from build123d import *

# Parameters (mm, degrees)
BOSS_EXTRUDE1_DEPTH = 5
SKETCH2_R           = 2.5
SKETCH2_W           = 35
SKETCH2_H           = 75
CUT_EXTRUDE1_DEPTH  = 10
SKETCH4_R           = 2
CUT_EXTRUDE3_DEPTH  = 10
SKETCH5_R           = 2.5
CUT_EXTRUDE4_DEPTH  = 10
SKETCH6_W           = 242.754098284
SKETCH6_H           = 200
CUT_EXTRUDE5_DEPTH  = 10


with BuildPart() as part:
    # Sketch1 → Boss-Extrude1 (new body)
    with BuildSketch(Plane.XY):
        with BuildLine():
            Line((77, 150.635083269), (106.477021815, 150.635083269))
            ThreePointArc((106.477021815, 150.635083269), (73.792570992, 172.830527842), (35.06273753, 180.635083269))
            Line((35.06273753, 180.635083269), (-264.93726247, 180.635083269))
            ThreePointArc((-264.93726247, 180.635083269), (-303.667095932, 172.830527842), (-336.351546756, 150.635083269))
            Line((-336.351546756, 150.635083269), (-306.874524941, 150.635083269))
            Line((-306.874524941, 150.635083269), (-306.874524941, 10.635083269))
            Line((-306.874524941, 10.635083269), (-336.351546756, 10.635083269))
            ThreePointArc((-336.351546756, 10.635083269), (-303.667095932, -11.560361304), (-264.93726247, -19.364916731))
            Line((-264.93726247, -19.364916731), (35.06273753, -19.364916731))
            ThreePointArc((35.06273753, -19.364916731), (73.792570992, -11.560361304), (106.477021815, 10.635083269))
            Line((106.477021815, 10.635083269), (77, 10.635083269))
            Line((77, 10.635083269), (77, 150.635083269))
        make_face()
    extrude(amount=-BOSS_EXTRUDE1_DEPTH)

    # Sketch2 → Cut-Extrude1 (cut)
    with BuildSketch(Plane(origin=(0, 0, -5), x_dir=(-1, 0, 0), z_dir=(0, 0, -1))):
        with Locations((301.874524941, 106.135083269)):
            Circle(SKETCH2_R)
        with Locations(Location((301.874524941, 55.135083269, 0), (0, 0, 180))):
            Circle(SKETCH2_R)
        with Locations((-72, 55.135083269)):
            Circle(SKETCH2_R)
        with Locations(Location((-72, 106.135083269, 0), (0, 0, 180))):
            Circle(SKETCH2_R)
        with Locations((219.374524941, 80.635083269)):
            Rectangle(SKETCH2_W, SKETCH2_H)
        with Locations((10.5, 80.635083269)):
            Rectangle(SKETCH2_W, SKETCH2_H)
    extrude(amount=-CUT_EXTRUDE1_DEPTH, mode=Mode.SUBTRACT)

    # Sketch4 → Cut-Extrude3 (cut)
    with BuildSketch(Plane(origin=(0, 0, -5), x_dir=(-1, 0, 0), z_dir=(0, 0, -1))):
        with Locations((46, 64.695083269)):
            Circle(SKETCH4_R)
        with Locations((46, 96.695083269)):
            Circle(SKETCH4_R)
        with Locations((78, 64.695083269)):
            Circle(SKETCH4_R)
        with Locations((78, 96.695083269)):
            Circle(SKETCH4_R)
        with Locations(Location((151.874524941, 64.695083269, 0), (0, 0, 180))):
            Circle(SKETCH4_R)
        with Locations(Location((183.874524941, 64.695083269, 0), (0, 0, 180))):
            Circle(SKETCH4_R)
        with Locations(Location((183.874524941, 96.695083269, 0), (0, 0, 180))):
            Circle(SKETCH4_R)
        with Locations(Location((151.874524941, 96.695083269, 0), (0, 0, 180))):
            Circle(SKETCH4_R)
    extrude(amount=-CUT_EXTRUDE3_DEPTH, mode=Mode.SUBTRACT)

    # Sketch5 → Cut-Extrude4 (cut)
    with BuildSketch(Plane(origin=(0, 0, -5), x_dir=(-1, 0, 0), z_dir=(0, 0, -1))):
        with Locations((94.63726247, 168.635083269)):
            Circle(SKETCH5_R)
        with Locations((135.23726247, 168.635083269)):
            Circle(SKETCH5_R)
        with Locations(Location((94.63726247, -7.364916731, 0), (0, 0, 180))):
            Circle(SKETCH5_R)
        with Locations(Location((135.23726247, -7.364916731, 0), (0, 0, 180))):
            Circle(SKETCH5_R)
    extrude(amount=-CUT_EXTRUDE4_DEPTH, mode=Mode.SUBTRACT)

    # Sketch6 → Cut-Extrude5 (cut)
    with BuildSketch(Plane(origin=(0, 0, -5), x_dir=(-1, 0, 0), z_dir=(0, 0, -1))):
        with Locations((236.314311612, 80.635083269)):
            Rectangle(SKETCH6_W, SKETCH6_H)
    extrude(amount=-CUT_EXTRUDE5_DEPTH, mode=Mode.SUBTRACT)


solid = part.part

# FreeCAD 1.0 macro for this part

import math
import FreeCAD as App
import Part
import Sketcher

V = App.Vector
Q = App.Units.Quantity


def add_polygon(sketch, points):
    """Adds a closed chain of lines whose ends are joined by coincident constraints."""
    first, n = sketch.GeometryCount, len(points)
    for a, b in zip(points, points[1:] + points[:1]):
        sketch.addGeometry(Part.LineSegment(App.Vector(*a, 0), App.Vector(*b, 0)), False)
    for i in range(n):
        sketch.addConstraint(Sketcher.Constraint("Coincident", first + i, 2, first + (i + 1) % n, 1))

doc = App.newDocument("Part")
params = doc.addObject("Spreadsheet::Sheet", "Params")
for row, (alias, value) in enumerate([
    ("sketch1_radius", "100 mm"),
    ("sketch1_width", "300 mm"),
    ("sketch1_height", "140 mm"),
    ("pad1_length", "5 mm"),
    ("sketch2_diameter", "5 mm"),
    ("sketch2_width", "35 mm"),
    ("sketch2_height", "75 mm"),
    ("pocket1_length", "10 mm"),
    ("sketch3_diameter", "4 mm"),
    ("pocket2_length", "10 mm"),
    ("sketch4_diameter", "5 mm"),
    ("pocket3_length", "10 mm"),
    ("sketch5_height", "200 mm"),
    ("pocket4_length", "10 mm"),
], start=1):
    params.set(f"A{row}", alias)
    params.set(f"B{row}", "=" + value)
    params.setAlias(f"B{row}", alias)

body = doc.addObject("PartDesign::Body", "Body")

sketch1 = doc.addObject("Sketcher::SketchObject", "Sketch")
body.addObject(sketch1)
sketch1.AttachmentSupport = (doc.XY_Plane, [""])
sketch1.MapMode = "FlatFace"
sketch1.addGeometry([
    Part.LineSegment(V(77, 150.635083, 0), V(106.477022, 150.635083, 0)),
    Part.ArcOfCircle(Part.Circle(V(35.062738, 80.635083, 0), V(0, 0, 1), 100), math.radians(44.427004), math.radians(90)),
    Part.LineSegment(V(35.062738, 180.635083, 0), V(-264.937262, 180.635083, 0)),
    Part.ArcOfCircle(Part.Circle(V(-264.937262, 80.635083, 0), V(0, 0, 1), 100), math.radians(90), math.radians(135.572996)),
    Part.LineSegment(V(-336.351547, 150.635083, 0), V(-306.874525, 150.635083, 0)),
    Part.LineSegment(V(-306.874525, 150.635083, 0), V(-306.874525, 10.635083, 0)),
    Part.LineSegment(V(-306.874525, 10.635083, 0), V(-336.351547, 10.635083, 0)),
    Part.ArcOfCircle(Part.Circle(V(-264.937262, 80.635083, 0), V(0, 0, 1), 100), math.radians(-135.572996), math.radians(-90)),
    Part.LineSegment(V(-264.937262, -19.364917, 0), V(35.062738, -19.364917, 0)),
    Part.ArcOfCircle(Part.Circle(V(35.062738, 80.635083, 0), V(0, 0, 1), 100), math.radians(-90), math.radians(-44.427004)),
    Part.LineSegment(V(106.477022, 10.635083, 0), V(77, 10.635083, 0)),
    Part.LineSegment(V(77, 10.635083, 0), V(77, 150.635083, 0)),
], False)
sketch1.addConstraint([
    Sketcher.Constraint("Coincident", 0, 2, 1, 1),
    Sketcher.Constraint("Tangent", 1, 2, 2, 1),
    Sketcher.Constraint("Tangent", 2, 2, 3, 1),
    Sketcher.Constraint("Coincident", 3, 2, 4, 1),
    Sketcher.Constraint("Coincident", 4, 2, 5, 1),
    Sketcher.Constraint("Coincident", 5, 2, 6, 1),
    Sketcher.Constraint("Coincident", 6, 2, 7, 1),
    Sketcher.Constraint("Tangent", 7, 2, 8, 1),
    Sketcher.Constraint("Tangent", 8, 2, 9, 1),
    Sketcher.Constraint("Coincident", 9, 2, 10, 1),
    Sketcher.Constraint("Coincident", 10, 2, 11, 1),
    Sketcher.Constraint("Coincident", 11, 2, 0, 1),
    Sketcher.Constraint("Horizontal", 0),
    Sketcher.Constraint("Horizontal", 2),
    Sketcher.Constraint("Horizontal", 4),
    Sketcher.Constraint("Vertical", 5),
    Sketcher.Constraint("Horizontal", 6),
    Sketcher.Constraint("Horizontal", 8),
    Sketcher.Constraint("Horizontal", 10),
    Sketcher.Constraint("Vertical", 11),
    Sketcher.Constraint("Coincident", 7, 3, 3, 3),
    Sketcher.Constraint("Coincident", 9, 3, 1, 3),
    Sketcher.Constraint("Equal", 1, 3),
    Sketcher.Constraint("Equal", 3, 7),
    Sketcher.Constraint("Horizontal", 0, 2, 3, 2),
    Sketcher.Constraint("Horizontal", 6, 2, 9, 2),
    Sketcher.Constraint("Vertical", 3, 2, 6, 2),
    Sketcher.Constraint("Equal", 0, 4),
    Sketcher.Constraint("Radius", 1, Q("100 mm")),
    Sketcher.Constraint("DistanceX", 2, 2, 2, 1, Q("300 mm")),
    Sketcher.Constraint("DistanceY", 5, 2, 5, 1, Q("140 mm")),
    Sketcher.Constraint("DistanceX", -1, 1, 10, 2, Q("77 mm")),
    Sketcher.Constraint("DistanceX", 0, 1, 0, 2, Q("29.477022 mm")),
    Sketcher.Constraint("DistanceY", -1, 1, 1, 3, Q("80.635083 mm")),
])
sketch1.setExpression("Constraints[28]", "Params.sketch1_radius")
sketch1.setExpression("Constraints[29]", "Params.sketch1_width")
sketch1.setExpression("Constraints[30]", "Params.sketch1_height")
pad1 = doc.addObject("PartDesign::Pad", "Pad")
body.addObject(pad1)
pad1.Profile = sketch1
pad1.setExpression("Length", "Params.pad1_length")
pad1.Reversed = True

sketch2 = doc.addObject("Sketcher::SketchObject", "Sketch001")
body.addObject(sketch2)
sketch2.AttachmentSupport = (doc.XY_Plane, [""])
sketch2.MapMode = "FlatFace"
sketch2.AttachmentOffset = App.Placement(V(0, 0, -5), App.Rotation())
sketch2.addGeometry(Part.Circle(V(-301.874525, 106.135083, 0), V(0, 0, 1), 2.5), False)
sketch2.addGeometry(Part.Circle(V(-301.874525, 55.135083, 0), V(0, 0, 1), 2.5), False)
sketch2.addGeometry(Part.Circle(V(72, 55.135083, 0), V(0, 0, 1), 2.5), False)
sketch2.addGeometry(Part.Circle(V(72, 106.135083, 0), V(0, 0, 1), 2.5), False)
add_polygon(sketch2, [(-201.874525, 118.135083), (-201.874525, 43.135083), (-236.874525, 43.135083), (-236.874525, 118.135083)])
add_polygon(sketch2, [(7, 118.135083), (7, 43.135083), (-28, 43.135083), (-28, 118.135083)])
sketch2.addConstraint([
    Sketcher.Constraint("Vertical", 4),
    Sketcher.Constraint("Horizontal", 5),
    Sketcher.Constraint("Vertical", 6),
    Sketcher.Constraint("Horizontal", 7),
    Sketcher.Constraint("Vertical", 8),
    Sketcher.Constraint("Horizontal", 9),
    Sketcher.Constraint("Vertical", 10),
    Sketcher.Constraint("Horizontal", 11),
    Sketcher.Constraint("Equal", 0, 1),
    Sketcher.Constraint("Equal", 1, 2),
    Sketcher.Constraint("Equal", 2, 3),
    Sketcher.Constraint("Horizontal", 1, 3, 2, 3),
    Sketcher.Constraint("Horizontal", 0, 3, 3, 3),
    Sketcher.Constraint("Horizontal", 5, 2, 8, 2),
    Sketcher.Constraint("Horizontal", 7, 2, 10, 2),
    Sketcher.Constraint("Vertical", 0, 3, 1, 3),
    Sketcher.Constraint("Vertical", 2, 3, 3, 3),
    Sketcher.Constraint("Equal", 7, 9),
    Sketcher.Constraint("Diameter", 0, Q("5 mm")),
    Sketcher.Constraint("DistanceX", 5, 2, 5, 1, Q("35 mm")),
    Sketcher.Constraint("DistanceY", 4, 2, 4, 1, Q("75 mm")),
    Sketcher.Constraint("DistanceX", -1, 1, 2, 3, Q("72 mm")),
    Sketcher.Constraint("DistanceX", -1, 1, 8, 2, Q("7 mm")),
    Sketcher.Constraint("DistanceY", 1, 3, 0, 3, Q("51 mm")),
    Sketcher.Constraint("DistanceX", 1, 3, 4, 2, Q("100 mm")),
    Sketcher.Constraint("DistanceY", 4, 2, 1, 3, Q("12 mm")),
    Sketcher.Constraint("DistanceX", 0, 3, -1, 1, Q("301.874525 mm")),
    Sketcher.Constraint("DistanceY", -1, 1, 0, 3, Q("106.135083 mm")),
])
sketch2.setExpression("Constraints[26]", "Params.sketch2_diameter")
sketch2.setExpression("Constraints[27]", "Params.sketch2_width")
sketch2.setExpression("Constraints[28]", "Params.sketch2_height")
pocket1 = doc.addObject("PartDesign::Pocket", "Pocket")
body.addObject(pocket1)
pocket1.Profile = sketch2
pocket1.setExpression("Length", "Params.pocket1_length")
pocket1.Reversed = True

sketch3 = doc.addObject("Sketcher::SketchObject", "Sketch002")
body.addObject(sketch3)
sketch3.AttachmentSupport = (doc.XY_Plane, [""])
sketch3.MapMode = "FlatFace"
sketch3.AttachmentOffset = App.Placement(V(0, 0, -5), App.Rotation())
sketch3.addGeometry([
    Part.Circle(V(-46, 64.695083, 0), V(0, 0, 1), 2),
    Part.Circle(V(-46, 96.695083, 0), V(0, 0, 1), 2),
    Part.Circle(V(-78, 64.695083, 0), V(0, 0, 1), 2),
    Part.Circle(V(-78, 96.695083, 0), V(0, 0, 1), 2),
    Part.Circle(V(-151.874525, 64.695083, 0), V(0, 0, 1), 2),
    Part.Circle(V(-183.874525, 64.695083, 0), V(0, 0, 1), 2),
    Part.Circle(V(-183.874525, 96.695083, 0), V(0, 0, 1), 2),
    Part.Circle(V(-151.874525, 96.695083, 0), V(0, 0, 1), 2),
], False)
sketch3.addConstraint([
    Sketcher.Constraint("Equal", 0, 1),
    Sketcher.Constraint("Equal", 1, 2),
    Sketcher.Constraint("Equal", 2, 3),
    Sketcher.Constraint("Equal", 3, 4),
    Sketcher.Constraint("Equal", 4, 5),
    Sketcher.Constraint("Equal", 5, 6),
    Sketcher.Constraint("Equal", 6, 7),
    Sketcher.Constraint("Horizontal", 0, 3, 2, 3),
    Sketcher.Constraint("Horizontal", 1, 3, 3, 3),
    Sketcher.Constraint("Horizontal", 2, 3, 4, 3),
    Sketcher.Constraint("Horizontal", 4, 3, 5, 3),
    Sketcher.Constraint("Horizontal", 3, 3, 6, 3),
    Sketcher.Constraint("Horizontal", 6, 3, 7, 3),
    Sketcher.Constraint("Vertical", 0, 3, 1, 3),
    Sketcher.Constraint("Vertical", 2, 3, 3, 3),
    Sketcher.Constraint("Vertical", 5, 3, 6, 3),
    Sketcher.Constraint("Vertical", 4, 3, 7, 3),
    Sketcher.Constraint("Diameter", 0, Q("4 mm")),
    Sketcher.Constraint("DistanceX", 0, 3, -1, 1, Q("46 mm")),
    Sketcher.Constraint("DistanceX", 2, 3, -1, 1, Q("78 mm")),
    Sketcher.Constraint("DistanceY", 0, 3, 1, 3, Q("32 mm")),
    Sketcher.Constraint("DistanceX", 5, 3, 4, 3, Q("32 mm")),
    Sketcher.Constraint("DistanceY", -1, 1, 0, 3, Q("64.695083 mm")),
    Sketcher.Constraint("DistanceX", 4, 3, -1, 1, Q("151.874525 mm")),
])
sketch3.setExpression("Constraints[17]", "Params.sketch3_diameter")
pocket2 = doc.addObject("PartDesign::Pocket", "Pocket001")
body.addObject(pocket2)
pocket2.Profile = sketch3
pocket2.setExpression("Length", "Params.pocket2_length")
pocket2.Reversed = True

sketch4 = doc.addObject("Sketcher::SketchObject", "Sketch003")
body.addObject(sketch4)
sketch4.AttachmentSupport = (doc.XY_Plane, [""])
sketch4.MapMode = "FlatFace"
sketch4.AttachmentOffset = App.Placement(V(0, 0, -5), App.Rotation())
sketch4.addGeometry([
    Part.Circle(V(-94.637262, 168.635083, 0), V(0, 0, 1), 2.5),
    Part.Circle(V(-135.237262, 168.635083, 0), V(0, 0, 1), 2.5),
    Part.Circle(V(-94.637262, -7.364917, 0), V(0, 0, 1), 2.5),
    Part.Circle(V(-135.237262, -7.364917, 0), V(0, 0, 1), 2.5),
], False)
sketch4.addConstraint([
    Sketcher.Constraint("Equal", 0, 1),
    Sketcher.Constraint("Equal", 1, 2),
    Sketcher.Constraint("Equal", 2, 3),
    Sketcher.Constraint("Horizontal", 0, 3, 1, 3),
    Sketcher.Constraint("Horizontal", 2, 3, 3, 3),
    Sketcher.Constraint("Vertical", 0, 3, 2, 3),
    Sketcher.Constraint("Vertical", 1, 3, 3, 3),
    Sketcher.Constraint("Diameter", 0, Q("5 mm")),
    Sketcher.Constraint("DistanceY", 2, 3, 0, 3, Q("176 mm")),
    Sketcher.Constraint("DistanceX", 1, 3, 0, 3, Q("40.6 mm")),
    Sketcher.Constraint("DistanceX", 0, 3, -1, 1, Q("94.637262 mm")),
    Sketcher.Constraint("DistanceY", -1, 1, 0, 3, Q("168.635083 mm")),
])
sketch4.setExpression("Constraints[7]", "Params.sketch4_diameter")
pocket3 = doc.addObject("PartDesign::Pocket", "Pocket002")
body.addObject(pocket3)
pocket3.Profile = sketch4
pocket3.setExpression("Length", "Params.pocket3_length")
pocket3.Reversed = True

sketch5 = doc.addObject("Sketcher::SketchObject", "Sketch004")
body.addObject(sketch5)
sketch5.AttachmentSupport = (doc.XY_Plane, [""])
sketch5.MapMode = "FlatFace"
sketch5.AttachmentOffset = App.Placement(V(0, 0, -5), App.Rotation())
add_polygon(sketch5, [(-114.937262, 180.635083), (-114.937262, -19.364917), (-357.691361, -19.364917), (-357.691361, 180.635083)])
sketch5.addConstraint([
    Sketcher.Constraint("Vertical", 0),
    Sketcher.Constraint("Horizontal", 1),
    Sketcher.Constraint("Vertical", 2),
    Sketcher.Constraint("Horizontal", 3),
    Sketcher.Constraint("DistanceY", 0, 2, 0, 1, Q("200 mm")),
    Sketcher.Constraint("DistanceX", 1, 2, 1, 1, Q("242.754098 mm")),
    Sketcher.Constraint("DistanceX", 1, 2, -1, 1, Q("357.691361 mm")),
    Sketcher.Constraint("DistanceY", 0, 2, -1, 1, Q("19.364917 mm")),
])
sketch5.setExpression("Constraints[8]", "Params.sketch5_height")
pocket4 = doc.addObject("PartDesign::Pocket", "Pocket003")
body.addObject(pocket4)
pocket4.Profile = sketch5
pocket4.setExpression("Length", "Params.pocket4_length")
pocket4.Reversed = True

doc.recompute()
